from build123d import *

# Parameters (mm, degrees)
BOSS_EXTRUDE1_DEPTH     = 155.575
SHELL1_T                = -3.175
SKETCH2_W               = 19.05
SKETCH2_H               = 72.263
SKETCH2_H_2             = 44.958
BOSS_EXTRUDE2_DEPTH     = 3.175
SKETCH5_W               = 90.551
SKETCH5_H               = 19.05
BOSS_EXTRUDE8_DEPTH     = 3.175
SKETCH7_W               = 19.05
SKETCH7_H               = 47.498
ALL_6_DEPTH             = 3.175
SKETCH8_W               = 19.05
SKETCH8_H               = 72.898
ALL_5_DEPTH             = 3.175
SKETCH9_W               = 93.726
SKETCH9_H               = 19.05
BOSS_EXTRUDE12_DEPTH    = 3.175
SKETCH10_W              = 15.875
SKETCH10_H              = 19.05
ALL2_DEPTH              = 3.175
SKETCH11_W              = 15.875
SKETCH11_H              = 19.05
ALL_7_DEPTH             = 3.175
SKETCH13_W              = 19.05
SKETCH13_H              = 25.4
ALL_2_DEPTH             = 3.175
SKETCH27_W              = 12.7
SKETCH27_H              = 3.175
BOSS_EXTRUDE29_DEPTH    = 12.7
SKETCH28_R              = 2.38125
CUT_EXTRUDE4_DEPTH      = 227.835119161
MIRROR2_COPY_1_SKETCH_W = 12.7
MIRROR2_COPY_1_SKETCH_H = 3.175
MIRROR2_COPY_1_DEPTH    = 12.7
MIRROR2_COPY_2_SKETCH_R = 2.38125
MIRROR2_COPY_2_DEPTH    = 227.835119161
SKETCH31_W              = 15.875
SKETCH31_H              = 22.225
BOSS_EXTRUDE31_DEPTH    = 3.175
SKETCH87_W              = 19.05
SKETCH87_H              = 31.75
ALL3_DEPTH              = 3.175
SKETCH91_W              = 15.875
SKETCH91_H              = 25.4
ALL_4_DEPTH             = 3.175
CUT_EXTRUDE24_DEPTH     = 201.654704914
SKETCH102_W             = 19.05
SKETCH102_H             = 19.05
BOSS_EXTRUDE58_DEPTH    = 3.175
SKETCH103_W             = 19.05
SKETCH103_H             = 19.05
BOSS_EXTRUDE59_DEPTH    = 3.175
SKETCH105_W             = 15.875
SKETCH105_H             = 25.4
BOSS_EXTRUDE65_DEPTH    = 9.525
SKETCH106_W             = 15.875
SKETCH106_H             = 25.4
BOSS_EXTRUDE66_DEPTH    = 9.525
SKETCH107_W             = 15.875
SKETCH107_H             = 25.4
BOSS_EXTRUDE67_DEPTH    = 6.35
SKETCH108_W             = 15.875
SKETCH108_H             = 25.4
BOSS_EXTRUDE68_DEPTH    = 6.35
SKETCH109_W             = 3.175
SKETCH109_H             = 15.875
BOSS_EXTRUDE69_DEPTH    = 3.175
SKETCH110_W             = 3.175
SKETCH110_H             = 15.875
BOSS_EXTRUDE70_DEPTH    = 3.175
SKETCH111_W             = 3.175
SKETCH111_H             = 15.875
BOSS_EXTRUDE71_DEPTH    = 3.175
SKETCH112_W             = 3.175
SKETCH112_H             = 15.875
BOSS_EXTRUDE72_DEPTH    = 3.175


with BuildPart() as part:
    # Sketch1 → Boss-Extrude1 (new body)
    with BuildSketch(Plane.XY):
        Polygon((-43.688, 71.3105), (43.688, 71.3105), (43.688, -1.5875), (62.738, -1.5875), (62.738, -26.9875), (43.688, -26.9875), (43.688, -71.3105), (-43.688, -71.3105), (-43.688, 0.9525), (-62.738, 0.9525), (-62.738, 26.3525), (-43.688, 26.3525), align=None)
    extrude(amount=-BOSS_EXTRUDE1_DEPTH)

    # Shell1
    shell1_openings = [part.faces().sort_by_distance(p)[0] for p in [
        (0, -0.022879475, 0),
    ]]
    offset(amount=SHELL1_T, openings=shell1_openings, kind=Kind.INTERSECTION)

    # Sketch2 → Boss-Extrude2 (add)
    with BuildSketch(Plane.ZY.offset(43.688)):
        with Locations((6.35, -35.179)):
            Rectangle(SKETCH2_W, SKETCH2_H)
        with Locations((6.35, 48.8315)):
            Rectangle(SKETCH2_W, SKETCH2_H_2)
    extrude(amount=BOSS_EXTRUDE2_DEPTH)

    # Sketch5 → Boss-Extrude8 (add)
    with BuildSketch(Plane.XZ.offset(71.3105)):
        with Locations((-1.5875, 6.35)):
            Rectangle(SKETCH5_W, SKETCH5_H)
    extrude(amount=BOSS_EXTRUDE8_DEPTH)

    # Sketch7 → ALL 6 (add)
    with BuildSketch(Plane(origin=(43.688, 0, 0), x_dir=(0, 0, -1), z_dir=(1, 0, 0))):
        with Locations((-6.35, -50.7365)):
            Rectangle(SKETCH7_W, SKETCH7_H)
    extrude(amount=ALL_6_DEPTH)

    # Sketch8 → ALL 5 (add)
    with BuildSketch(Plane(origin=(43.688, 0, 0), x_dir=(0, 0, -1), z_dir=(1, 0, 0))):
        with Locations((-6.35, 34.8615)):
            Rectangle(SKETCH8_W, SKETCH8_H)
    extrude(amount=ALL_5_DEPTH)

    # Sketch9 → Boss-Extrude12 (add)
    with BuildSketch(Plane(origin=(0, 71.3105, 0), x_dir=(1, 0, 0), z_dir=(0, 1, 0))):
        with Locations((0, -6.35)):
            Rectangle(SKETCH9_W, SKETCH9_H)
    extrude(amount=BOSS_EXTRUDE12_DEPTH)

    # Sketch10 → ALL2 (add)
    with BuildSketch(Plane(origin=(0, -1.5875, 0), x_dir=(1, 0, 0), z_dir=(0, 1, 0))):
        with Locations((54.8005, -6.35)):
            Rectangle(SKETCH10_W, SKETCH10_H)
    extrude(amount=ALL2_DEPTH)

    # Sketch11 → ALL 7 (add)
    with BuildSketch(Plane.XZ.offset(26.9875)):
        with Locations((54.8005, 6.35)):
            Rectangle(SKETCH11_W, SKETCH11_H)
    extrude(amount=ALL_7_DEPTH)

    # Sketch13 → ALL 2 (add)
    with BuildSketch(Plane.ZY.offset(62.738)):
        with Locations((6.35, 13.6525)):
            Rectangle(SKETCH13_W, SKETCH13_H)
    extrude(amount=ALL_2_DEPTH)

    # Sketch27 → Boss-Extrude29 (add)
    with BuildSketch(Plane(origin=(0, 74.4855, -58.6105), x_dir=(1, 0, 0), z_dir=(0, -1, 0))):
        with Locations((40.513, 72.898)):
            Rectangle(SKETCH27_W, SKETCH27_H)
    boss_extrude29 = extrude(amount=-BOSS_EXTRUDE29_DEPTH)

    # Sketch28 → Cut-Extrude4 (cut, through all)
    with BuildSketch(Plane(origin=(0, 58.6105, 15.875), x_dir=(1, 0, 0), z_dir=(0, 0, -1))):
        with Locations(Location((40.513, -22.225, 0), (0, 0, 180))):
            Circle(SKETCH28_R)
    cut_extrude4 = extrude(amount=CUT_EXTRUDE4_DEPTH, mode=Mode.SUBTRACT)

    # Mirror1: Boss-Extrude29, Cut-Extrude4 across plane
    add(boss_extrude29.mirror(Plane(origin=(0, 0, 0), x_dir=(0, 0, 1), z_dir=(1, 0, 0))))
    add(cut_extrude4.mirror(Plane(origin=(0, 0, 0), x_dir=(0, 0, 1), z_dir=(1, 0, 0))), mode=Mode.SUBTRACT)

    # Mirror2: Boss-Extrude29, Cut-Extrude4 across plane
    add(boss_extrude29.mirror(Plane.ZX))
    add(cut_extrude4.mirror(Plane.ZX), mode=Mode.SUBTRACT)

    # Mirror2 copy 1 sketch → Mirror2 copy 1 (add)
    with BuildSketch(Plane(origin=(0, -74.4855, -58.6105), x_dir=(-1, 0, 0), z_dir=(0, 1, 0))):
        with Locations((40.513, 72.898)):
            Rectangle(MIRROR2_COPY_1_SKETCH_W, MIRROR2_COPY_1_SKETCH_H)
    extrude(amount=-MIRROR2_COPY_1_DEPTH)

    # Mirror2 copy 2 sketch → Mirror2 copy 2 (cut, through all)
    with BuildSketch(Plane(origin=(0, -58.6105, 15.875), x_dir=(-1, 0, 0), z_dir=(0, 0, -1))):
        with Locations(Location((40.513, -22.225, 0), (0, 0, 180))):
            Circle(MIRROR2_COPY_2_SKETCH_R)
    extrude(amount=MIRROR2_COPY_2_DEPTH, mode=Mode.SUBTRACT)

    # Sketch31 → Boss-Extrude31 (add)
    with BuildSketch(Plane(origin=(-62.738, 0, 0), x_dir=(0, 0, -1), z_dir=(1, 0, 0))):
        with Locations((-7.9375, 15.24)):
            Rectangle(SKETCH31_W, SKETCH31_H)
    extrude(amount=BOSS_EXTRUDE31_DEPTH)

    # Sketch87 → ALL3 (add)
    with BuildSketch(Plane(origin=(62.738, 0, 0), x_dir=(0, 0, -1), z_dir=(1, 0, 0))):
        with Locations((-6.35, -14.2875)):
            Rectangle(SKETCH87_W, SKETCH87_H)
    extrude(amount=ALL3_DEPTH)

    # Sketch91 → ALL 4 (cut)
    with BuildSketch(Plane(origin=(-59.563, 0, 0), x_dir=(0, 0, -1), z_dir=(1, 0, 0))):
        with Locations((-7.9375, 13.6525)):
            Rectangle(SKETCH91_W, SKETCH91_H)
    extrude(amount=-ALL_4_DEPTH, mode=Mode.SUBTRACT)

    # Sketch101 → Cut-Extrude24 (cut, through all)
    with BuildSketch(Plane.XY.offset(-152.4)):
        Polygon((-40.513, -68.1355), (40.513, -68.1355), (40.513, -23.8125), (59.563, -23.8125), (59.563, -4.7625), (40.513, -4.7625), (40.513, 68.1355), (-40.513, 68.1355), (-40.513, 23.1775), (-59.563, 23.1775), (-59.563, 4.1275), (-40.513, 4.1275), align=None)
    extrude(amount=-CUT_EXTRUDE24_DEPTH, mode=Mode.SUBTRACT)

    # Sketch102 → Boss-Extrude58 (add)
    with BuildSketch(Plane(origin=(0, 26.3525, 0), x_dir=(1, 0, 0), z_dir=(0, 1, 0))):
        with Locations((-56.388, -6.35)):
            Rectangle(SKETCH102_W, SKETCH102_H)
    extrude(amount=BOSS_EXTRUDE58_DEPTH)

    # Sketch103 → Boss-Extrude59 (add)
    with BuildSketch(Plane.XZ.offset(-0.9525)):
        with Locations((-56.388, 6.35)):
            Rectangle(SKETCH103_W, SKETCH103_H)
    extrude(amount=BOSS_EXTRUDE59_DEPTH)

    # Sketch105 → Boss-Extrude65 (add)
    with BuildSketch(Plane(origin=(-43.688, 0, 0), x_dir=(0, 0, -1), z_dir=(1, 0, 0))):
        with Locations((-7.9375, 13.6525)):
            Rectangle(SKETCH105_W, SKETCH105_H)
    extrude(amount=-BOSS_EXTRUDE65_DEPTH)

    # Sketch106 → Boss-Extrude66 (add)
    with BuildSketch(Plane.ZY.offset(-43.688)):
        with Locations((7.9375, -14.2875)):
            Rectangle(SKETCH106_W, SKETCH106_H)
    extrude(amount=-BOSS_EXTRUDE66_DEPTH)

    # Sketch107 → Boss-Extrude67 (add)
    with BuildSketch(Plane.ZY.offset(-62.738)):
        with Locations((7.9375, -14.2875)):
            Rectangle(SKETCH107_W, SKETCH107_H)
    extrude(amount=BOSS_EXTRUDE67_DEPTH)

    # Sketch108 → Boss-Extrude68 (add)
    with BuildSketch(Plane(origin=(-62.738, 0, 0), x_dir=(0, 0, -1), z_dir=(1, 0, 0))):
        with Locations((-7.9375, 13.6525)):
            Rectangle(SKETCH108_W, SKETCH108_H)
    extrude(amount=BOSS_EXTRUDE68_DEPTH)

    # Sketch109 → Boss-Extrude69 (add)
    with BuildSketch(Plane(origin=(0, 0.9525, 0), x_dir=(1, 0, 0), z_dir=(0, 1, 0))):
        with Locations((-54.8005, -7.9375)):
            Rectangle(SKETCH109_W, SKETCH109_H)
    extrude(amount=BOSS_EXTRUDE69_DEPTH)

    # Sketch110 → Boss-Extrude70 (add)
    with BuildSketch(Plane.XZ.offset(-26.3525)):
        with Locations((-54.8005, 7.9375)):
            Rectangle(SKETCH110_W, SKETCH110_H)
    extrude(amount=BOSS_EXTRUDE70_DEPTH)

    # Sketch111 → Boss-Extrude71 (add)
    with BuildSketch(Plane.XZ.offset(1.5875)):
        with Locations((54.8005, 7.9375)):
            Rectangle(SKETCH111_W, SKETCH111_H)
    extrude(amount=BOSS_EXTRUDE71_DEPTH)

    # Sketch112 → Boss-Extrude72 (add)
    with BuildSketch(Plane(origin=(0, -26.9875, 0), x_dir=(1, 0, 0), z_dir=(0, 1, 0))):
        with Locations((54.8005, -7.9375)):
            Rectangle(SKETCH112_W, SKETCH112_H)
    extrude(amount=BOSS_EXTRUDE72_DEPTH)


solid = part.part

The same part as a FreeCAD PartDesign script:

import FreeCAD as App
import Part
import Sketcher
from FreeCAD import Vector
Q = App.Units.Quantity


def faces_at(feature, points):
    """Names of the faces that lie closest to the given points."""
    faces = feature.Shape.Faces
    near = lambda p: min(range(len(faces)), key=lambda i: faces[i].distToShape(Part.Vertex(*p))[0])
    return sorted({f"Face{near(p) + 1}" for p in points})

doc = App.newDocument("Part")
body = doc.addObject("PartDesign::Body", "Body")

# Sketch on XY plane
sketch1 = doc.addObject("Sketcher::SketchObject", "Sketch")
body.addObject(sketch1)
sketch1.AttachmentSupport = (doc.XY_Plane, [""])
sketch1.MapMode = "FlatFace"
sketch1.addGeometry([
    Part.LineSegment(Vector(44, 71, 0), Vector(-44, 71, 0)),  # 0
    Part.LineSegment(Vector(-44, 71, 0), Vector(-44, 26, 0)),  # 1
    Part.LineSegment(Vector(-44, 26, 0), Vector(-63, 26, 0)),  # 2
    Part.LineSegment(Vector(-63, 26, 0), Vector(-63, 1, 0)),  # 3
    Part.LineSegment(Vector(-63, 1, 0), Vector(-44, 1, 0)),  # 4
    Part.LineSegment(Vector(-44, 1, 0), Vector(-44, -71, 0)),  # 5
    Part.LineSegment(Vector(-44, -71, 0), Vector(44, -71, 0)),  # 6
    Part.LineSegment(Vector(44, -71, 0), Vector(44, -27, 0)),  # 7
    Part.LineSegment(Vector(44, -27, 0), Vector(63, -27, 0)),  # 8
    Part.LineSegment(Vector(63, -27, 0), Vector(63, -2, 0)),  # 9
    Part.LineSegment(Vector(63, -2, 0), Vector(44, -2, 0)),  # 10
    Part.LineSegment(Vector(44, -2, 0), Vector(44, 71, 0)),  # 11
], False)
sketch1.addConstraint([
    Sketcher.Constraint("Coincident", 0, 2, 1, 1),
    Sketcher.Constraint("Coincident", 1, 2, 2, 1),
    Sketcher.Constraint("Coincident", 2, 2, 3, 1),
    Sketcher.Constraint("Coincident", 3, 2, 4, 1),
    Sketcher.Constraint("Coincident", 4, 2, 5, 1),
    Sketcher.Constraint("Coincident", 5, 2, 6, 1),
    Sketcher.Constraint("Coincident", 6, 2, 7, 1),
    Sketcher.Constraint("Coincident", 7, 2, 8, 1),
    Sketcher.Constraint("Coincident", 8, 2, 9, 1),
    Sketcher.Constraint("Coincident", 9, 2, 10, 1),
    Sketcher.Constraint("Coincident", 10, 2, 11, 1),
    Sketcher.Constraint("Coincident", 11, 2, 0, 1),
    Sketcher.Constraint("Horizontal", 0),
    Sketcher.Constraint("Vertical", 1),
    Sketcher.Constraint("Horizontal", 2),
    Sketcher.Constraint("Vertical", 3),
    Sketcher.Constraint("Horizontal", 4),
    Sketcher.Constraint("Vertical", 5),
    Sketcher.Constraint("Horizontal", 6),
    Sketcher.Constraint("Vertical", 7),
    Sketcher.Constraint("Horizontal", 8),
    Sketcher.Constraint("Vertical", 9),
    Sketcher.Constraint("Horizontal", 10),
    Sketcher.Constraint("Vertical", 11),
    Sketcher.Constraint("Symmetric", 0, 2, 6, 2, -1, 1),
    Sketcher.Constraint("Vertical", 1, 2, 4, 2),
    Sketcher.Constraint("Vertical", 7, 2, 10, 2),
    Sketcher.Constraint("Equal", 4, 8),
    Sketcher.Constraint("Equal", 3, 9),
    Sketcher.Constraint("DistanceY", 3, 2, 3, 1, Q("1 in")),
    Sketcher.Constraint("DistanceX", 0, 2, 0, 1, Q("3.44 in")),
    Sketcher.Constraint("DistanceX", 2, 2, 2, 1, Q("0.75 in")),
    Sketcher.Constraint("DistanceY", 1, 2, 1, 1, Q("1.77 in")),
    Sketcher.Constraint("DistanceY", 11, 1, 11, 2, Q("2.87 in")),
    Sketcher.Constraint("DistanceY", 5, 2, 5, 1, Q("2.845 in")),
])
pad1 = doc.addObject("PartDesign::Pad", "Pad")
body.addObject(pad1)
pad1.Profile = sketch1
pad1.Length = Q("6.125 in")
pad1.Reversed = True
doc.recompute()

thickness = doc.addObject("PartDesign::Thickness", "Thickness")
body.addObject(thickness)
thickness.Base = (pad1, faces_at(pad1, [(0, 0, 0)]))
thickness.Value = Q("0.125 in")
thickness.Reversed = True
thickness.Join = "Intersection"

# Sketch on YZ plane
sketch2 = doc.addObject("Sketcher::SketchObject", "Sketch001")
body.addObject(sketch2)
sketch2.AttachmentSupport = (doc.YZ_Plane, [""])
sketch2.MapMode = "FlatFace"
sketch2.AttachmentOffset = App.Placement(Vector(0, 0, -1.72 * 25.4), App.Rotation())
sketch2.addGeometry([
    Part.LineSegment(Vector(1, -3, 0), Vector(-71, -3, 0)),  # 0
    Part.LineSegment(Vector(-71, -3, 0), Vector(-71, 16, 0)),  # 1
    Part.LineSegment(Vector(-71, 16, 0), Vector(1, 16, 0)),  # 2
    Part.LineSegment(Vector(1, 16, 0), Vector(1, -3, 0)),  # 3
    Part.LineSegment(Vector(71, -3, 0), Vector(26, -3, 0)),  # 4
    Part.LineSegment(Vector(26, -3, 0), Vector(26, 16, 0)),  # 5
    Part.LineSegment(Vector(26, 16, 0), Vector(71, 16, 0)),  # 6
    Part.LineSegment(Vector(71, 16, 0), Vector(71, -3, 0)),  # 7
], False)
sketch2.addConstraint([
    Sketcher.Constraint("Coincident", 0, 2, 1, 1),
    Sketcher.Constraint("Coincident", 1, 2, 2, 1),
    Sketcher.Constraint("Coincident", 2, 2, 3, 1),
    Sketcher.Constraint("Coincident", 3, 2, 0, 1),
    Sketcher.Constraint("Coincident", 4, 2, 5, 1),
    Sketcher.Constraint("Coincident", 5, 2, 6, 1),
    Sketcher.Constraint("Coincident", 6, 2, 7, 1),
    Sketcher.Constraint("Coincident", 7, 2, 4, 1),
    Sketcher.Constraint("Horizontal", 0),
    Sketcher.Constraint("Vertical", 1),
    Sketcher.Constraint("Horizontal", 2),
    Sketcher.Constraint("Vertical", 3),
    Sketcher.Constraint("Horizontal", 4),
    Sketcher.Constraint("Vertical", 5),
    Sketcher.Constraint("Horizontal", 6),
    Sketcher.Constraint("Vertical", 7),
    Sketcher.Constraint("Symmetric", 1, 2, 6, 2, -2),
    Sketcher.Constraint("Horizontal", 3, 2, 4, 2),
    Sketcher.Constraint("DistanceX", 3, 2, 4, 2, Q("1 in")),
    Sketcher.Constraint("DistanceX", 4, 2, 4, 1, Q("1.77 in")),
    Sketcher.Constraint("DistanceY", 1, 1, 1, 2, Q("0.75 in")),
    Sketcher.Constraint("DistanceX", 0, 2, 0, 1, Q("2.845 in")),
    Sketcher.Constraint("DistanceY", 0, 2, -1, 1, Q("0.125 in")),
])
pad2 = doc.addObject("PartDesign::Pad", "Pad001")
body.addObject(pad2)
pad2.Profile = sketch2
pad2.Length = Q("0.125 in")
pad2.Reversed = True

# Sketch on XZ plane
sketch3 = doc.addObject("Sketcher::SketchObject", "Sketch002")
body.addObject(sketch3)
sketch3.AttachmentSupport = (doc.XZ_Plane, [""])
sketch3.MapMode = "FlatFace"
sketch3.AttachmentOffset = App.Placement(Vector(0, 0, 2.8075 * 25.4), App.Rotation())
sketch3.addGeometry([
    Part.LineSegment(Vector(-47, 16, 0), Vector(-47, -3, 0)),
    Part.LineSegment(Vector(-47, -3, 0), Vector(44, -3, 0)),
    Part.LineSegment(Vector(44, -3, 0), Vector(44, 16, 0)),
    Part.LineSegment(Vector(44, 16, 0), Vector(-47, 16, 0)),
], False)
sketch3.addConstraint([
    Sketcher.Constraint("Coincident", 0, 2, 1, 1),
    Sketcher.Constraint("Coincident", 1, 2, 2, 1),
    Sketcher.Constraint("Coincident", 2, 2, 3, 1),
    Sketcher.Constraint("Coincident", 3, 2, 0, 1),
    Sketcher.Constraint("Vertical", 0),
    Sketcher.Constraint("Horizontal", 1),
    Sketcher.Constraint("Vertical", 2),
    Sketcher.Constraint("Horizontal", 3),
    Sketcher.Constraint("DistanceY", 0, 2, 0, 1, Q("0.75 in")),
    Sketcher.Constraint("DistanceX", 1, 1, 1, 2, Q("3.565 in")),
    Sketcher.Constraint("DistanceX", -1, 1, 1, 2, Q("1.72 in")),
    Sketcher.Constraint("DistanceY", 0, 2, -1, 1, Q("0.125 in")),
])
pad3 = doc.addObject("PartDesign::Pad", "Pad002")
body.addObject(pad3)
pad3.Profile = sketch3
pad3.Length = Q("0.125 in")

# Sketch on YZ plane
sketch4 = doc.addObject("Sketcher::SketchObject", "Sketch003")
body.addObject(sketch4)
sketch4.AttachmentSupport = (doc.YZ_Plane, [""])
sketch4.MapMode = "FlatFace"
sketch4.AttachmentOffset = App.Placement(Vector(0, 0, 1.72 * 25.4), App.Rotation())
sketch4.addGeometry([
    Part.LineSegment(Vector(-27, 16, 0), Vector(-74, 16, 0)),
    Part.LineSegment(Vector(-74, 16, 0), Vector(-74, -3, 0)),
    Part.LineSegment(Vector(-74, -3, 0), Vector(-27, -3, 0)),
    Part.LineSegment(Vector(-27, -3, 0), Vector(-27, 16, 0)),
], False)
sketch4.addConstraint([
    Sketcher.Constraint("Coincident", 0, 2, 1, 1),
    Sketcher.Constraint("Coincident", 1, 2, 2, 1),
    Sketcher.Constraint("Coincident", 2, 2, 3, 1),
    Sketcher.Constraint("Coincident", 3, 2, 0, 1),
    Sketcher.Constraint("Horizontal", 0),
    Sketcher.Constraint("Vertical", 1),
    Sketcher.Constraint("Horizontal", 2),
    Sketcher.Constraint("Vertical", 3),
    Sketcher.Constraint("DistanceX", 0, 2, 0, 1, Q("1.87 in")),
    Sketcher.Constraint("DistanceY", 1, 2, 1, 1, Q("0.75 in")),
    Sketcher.Constraint("DistanceY", -1, 1, 0, 2, Q("0.625 in")),
    Sketcher.Constraint("DistanceX", 2, 2, -1, 1, Q("1.0625 in")),
])
pad4 = doc.addObject("PartDesign::Pad", "Pad003")
body.addObject(pad4)
pad4.Profile = sketch4
pad4.Length = Q("0.125 in")

# Sketch on YZ plane
sketch5 = doc.addObject("Sketcher::SketchObject", "Sketch004")
body.addObject(sketch5)
sketch5.AttachmentSupport = (doc.YZ_Plane, [""])
sketch5.MapMode = "FlatFace"
sketch5.AttachmentOffset = App.Placement(Vector(0, 0, 1.72 * 25.4), App.Rotation())
sketch5.addGeometry([
    Part.LineSegment(Vector(71, 16, 0), Vector(-2, 16, 0)),
    Part.LineSegment(Vector(-2, 16, 0), Vector(-2, -3, 0)),
    Part.LineSegment(Vector(-2, -3, 0), Vector(71, -3, 0)),
    Part.LineSegment(Vector(71, -3, 0), Vector(71, 16, 0)),
], False)
sketch5.addConstraint([
    Sketcher.Constraint("Coincident", 0, 2, 1, 1),
    Sketcher.Constraint("Coincident", 1, 2, 2, 1),
    Sketcher.Constraint("Coincident", 2, 2, 3, 1),
    Sketcher.Constraint("Coincident", 3, 2, 0, 1),
    Sketcher.Constraint("Horizontal", 0),
    Sketcher.Constraint("Vertical", 1),
    Sketcher.Constraint("Horizontal", 2),
    Sketcher.Constraint("Vertical", 3),
    Sketcher.Constraint("DistanceX", 0, 2, 0, 1, Q("2.87 in")),
    Sketcher.Constraint("DistanceY", 1, 2, 1, 1, Q("0.75 in")),
    Sketcher.Constraint("DistanceX", 0, 2, -1, 1, Q("0.0625 in")),
    Sketcher.Constraint("DistanceY", -1, 1, 0, 2, Q("0.625 in")),
])
pad5 = doc.addObject("PartDesign::Pad", "Pad004")
body.addObject(pad5)
pad5.Profile = sketch5
pad5.Length = Q("0.125 in")

# Sketch on XZ plane
sketch6 = doc.addObject("Sketcher::SketchObject", "Sketch005")
body.addObject(sketch6)
sketch6.AttachmentSupport = (doc.XZ_Plane, [""])
sketch6.MapMode = "FlatFace"
sketch6.AttachmentOffset = App.Placement(Vector(0, 0, -2.8075 * 25.4), App.Rotation())
sketch6.addGeometry([
    Part.LineSegment(Vector(-47, -3, 0), Vector(-47, 16, 0)),
    Part.LineSegment(Vector(-47, 16, 0), Vector(47, 16, 0)),
    Part.LineSegment(Vector(47, 16, 0), Vector(47, -3, 0)),
    Part.LineSegment(Vector(47, -3, 0), Vector(-47, -3, 0)),
], False)
sketch6.addConstraint([
    Sketcher.Constraint("Coincident", 0, 2, 1, 1),
    Sketcher.Constraint("Coincident", 1, 2, 2, 1),
    Sketcher.Constraint("Coincident", 2, 2, 3, 1),
    Sketcher.Constraint("Coincident", 3, 2, 0, 1),
    Sketcher.Constraint("Vertical", 0),
    Sketcher.Constraint("Horizontal", 1),
    Sketcher.Constraint("Vertical", 2),
    Sketcher.Constraint("Horizontal", 3),
    Sketcher.Constraint("DistanceX", 1, 1, 1, 2, Q("3.69 in")),
    Sketcher.Constraint("DistanceY", 0, 1, 0, 2, Q("0.75 in")),
    Sketcher.Constraint("DistanceX", 0, 2, -1, 1, Q("1.845 in")),
    Sketcher.Constraint("DistanceY", -1, 1, 0, 2, Q("0.625 in")),
])
pad6 = doc.addObject("PartDesign::Pad", "Pad005")
body.addObject(pad6)
pad6.Profile = sketch6
pad6.Length = Q("0.125 in")
pad6.Reversed = True

# Sketch on XZ plane
sketch7 = doc.addObject("Sketcher::SketchObject", "Sketch006")
body.addObject(sketch7)
sketch7.AttachmentSupport = (doc.XZ_Plane, [""])
sketch7.MapMode = "FlatFace"
sketch7.AttachmentOffset = App.Placement(Vector(0, 0, 0.0625 * 25.4), App.Rotation())
sketch7.addGeometry([
    Part.LineSegment(Vector(47, -3, 0), Vector(47, 16, 0)),
    Part.LineSegment(Vector(47, 16, 0), Vector(63, 16, 0)),
    Part.LineSegment(Vector(63, 16, 0), Vector(63, -3, 0)),
    Part.LineSegment(Vector(63, -3, 0), Vector(47, -3, 0)),
], False)
sketch7.addConstraint([
    Sketcher.Constraint("Coincident", 0, 2, 1, 1),
    Sketcher.Constraint("Coincident", 1, 2, 2, 1),
    Sketcher.Constraint("Coincident", 2, 2, 3, 1),
    Sketcher.Constraint("Coincident", 3, 2, 0, 1),
    Sketcher.Constraint("Vertical", 0),
    Sketcher.Constraint("Horizontal", 1),
    Sketcher.Constraint("Vertical", 2),
    Sketcher.Constraint("Horizontal", 3),
    Sketcher.Constraint("DistanceY", 0, 1, 0, 2, Q("0.75 in")),
    Sketcher.Constraint("DistanceX", 1, 1, 1, 2, Q("0.625 in")),
    Sketcher.Constraint("DistanceX", -1, 1, 1, 2, Q("2.47 in")),
    Sketcher.Constraint("DistanceY", -1, 1, 0, 2, Q("0.625 in")),
])
pad7 = doc.addObject("PartDesign::Pad", "Pad006")
body.addObject(pad7)
pad7.Profile = sketch7
pad7.Length = Q("0.125 in")
pad7.Reversed = True

# Sketch on XZ plane
sketch8 = doc.addObject("Sketcher::SketchObject", "Sketch007")
body.addObject(sketch8)
sketch8.AttachmentSupport = (doc.XZ_Plane, [""])
sketch8.MapMode = "FlatFace"
sketch8.AttachmentOffset = App.Placement(Vector(0, 0, 1.0625 * 25.4), App.Rotation())
sketch8.addGeometry([
    Part.LineSegment(Vector(47, 16, 0), Vector(47, -3, 0)),
    Part.LineSegment(Vector(47, -3, 0), Vector(63, -3, 0)),
    Part.LineSegment(Vector(63, -3, 0), Vector(63, 16, 0)),
    Part.LineSegment(Vector(63, 16, 0), Vector(47, 16, 0)),
], False)
sketch8.addConstraint([
    Sketcher.Constraint("Coincident", 0, 2, 1, 1),
    Sketcher.Constraint("Coincident", 1, 2, 2, 1),
    Sketcher.Constraint("Coincident", 2, 2, 3, 1),
    Sketcher.Constraint("Coincident", 3, 2, 0, 1),
    Sketcher.Constraint("Vertical", 0),
    Sketcher.Constraint("Horizontal", 1),
    Sketcher.Constraint("Vertical", 2),
    Sketcher.Constraint("Horizontal", 3),
    Sketcher.Constraint("DistanceY", 0, 2, 0, 1, Q("0.75 in")),
    Sketcher.Constraint("DistanceX", 1, 1, 1, 2, Q("0.625 in")),
    Sketcher.Constraint("DistanceX", -1, 1, 1, 2, Q("2.47 in")),
    Sketcher.Constraint("DistanceY", 0, 2, -1, 1, Q("0.125 in")),
])
pad8 = doc.addObject("PartDesign::Pad", "Pad007")
body.addObject(pad8)
pad8.Profile = sketch8
pad8.Length = Q("0.125 in")

# Sketch on YZ plane
sketch9 = doc.addObject("Sketcher::SketchObject", "Sketch008")
body.addObject(sketch9)
sketch9.AttachmentSupport = (doc.YZ_Plane, [""])
sketch9.MapMode = "FlatFace"
sketch9.AttachmentOffset = App.Placement(Vector(0, 0, -2.47 * 25.4), App.Rotation())
sketch9.addGeometry([
    Part.LineSegment(Vector(26, -3, 0), Vector(1, -3, 0)),
    Part.LineSegment(Vector(1, -3, 0), Vector(1, 16, 0)),
    Part.LineSegment(Vector(1, 16, 0), Vector(26, 16, 0)),
    Part.LineSegment(Vector(26, 16, 0), Vector(26, -3, 0)),
], False)
sketch9.addConstraint([
    Sketcher.Constraint("Coincident", 0, 2, 1, 1),
    Sketcher.Constraint("Coincident", 1, 2, 2, 1),
    Sketcher.Constraint("Coincident", 2, 2, 3, 1),
    Sketcher.Constraint("Coincident", 3, 2, 0, 1),
    Sketcher.Constraint("Horizontal", 0),
    Sketcher.Constraint("Vertical", 1),
    Sketcher.Constraint("Horizontal", 2),
    Sketcher.Constraint("Vertical", 3),
    Sketcher.Constraint("DistanceX", 0, 2, 0, 1, Q("1 in")),
    Sketcher.Constraint("DistanceY", 1, 1, 1, 2, Q("0.75 in")),
    Sketcher.Constraint("DistanceY", 0, 2, -1, 1, Q("0.125 in")),
    Sketcher.Constraint("DistanceX", -1, 1, 0, 2, Q("0.0375 in")),
])
pad9 = doc.addObject("PartDesign::Pad", "Pad008")
body.addObject(pad9)
pad9.Profile = sketch9
pad9.Length = Q("0.125 in")
pad9.Reversed = True

# Sketch on XZ plane
sketch10 = doc.addObject("Sketcher::SketchObject", "Sketch009")
body.addObject(sketch10)
sketch10.AttachmentSupport = (doc.XZ_Plane, [""])
sketch10.MapMode = "FlatFace"
sketch10.AttachmentOffset = App.Placement(Vector(0, 0, -2.9325 * 25.4), App.Rotation())
sketch10.addGeometry([
    Part.LineSegment(Vector(34.2, 15.9, 0), Vector(34.2, 12.7, 0)),
    Part.LineSegment(Vector(34.2, 12.7, 0), Vector(46.9, 12.7, 0)),
    Part.LineSegment(Vector(46.9, 12.7, 0), Vector(46.9, 15.9, 0)),
    Part.LineSegment(Vector(46.9, 15.9, 0), Vector(34.2, 15.9, 0)),
], False)
sketch10.addConstraint([
    Sketcher.Constraint("Coincident", 0, 2, 1, 1),
    Sketcher.Constraint("Coincident", 1, 2, 2, 1),
    Sketcher.Constraint("Coincident", 2, 2, 3, 1),
    Sketcher.Constraint("Coincident", 3, 2, 0, 1),
    Sketcher.Constraint("Vertical", 0),
    Sketcher.Constraint("Horizontal", 1),
    Sketcher.Constraint("Vertical", 2),
    Sketcher.Constraint("Horizontal", 3),
    Sketcher.Constraint("DistanceX", 1, 1, 1, 2, Q("0.5 in")),
    Sketcher.Constraint("DistanceY", -1, 1, 0, 2, Q("0.5 in")),
    Sketcher.Constraint("DistanceY", 0, 2, 0, 1, Q("0.125 in")),
    Sketcher.Constraint("DistanceX", -1, 1, 0, 2, Q("1.345 in")),
])
pad10 = doc.addObject("PartDesign::Pad", "Pad009")
body.addObject(pad10)
pad10.Profile = sketch10
pad10.Length = Q("0.5 in")
pad10.Reversed = True

# Sketch on XY plane
sketch11 = doc.addObject("Sketcher::SketchObject", "Sketch010")
body.addObject(sketch11)
sketch11.AttachmentSupport = (doc.XY_Plane, [""])
sketch11.MapMode = "FlatFace"
sketch11.AttachmentOffset = App.Placement(Vector(0, 0, 0.625 * 25.4), App.Rotation())
sketch11.addGeometry(Part.Circle(Vector(40.5, 80.8, 0), Vector(0, 0, 1), 2.4), False)
sketch11.addConstraint([
    Sketcher.Constraint("Diameter", 0, Q("0.1875 in")),
    Sketcher.Constraint("DistanceX", -1, 1, 0, 3, Q("1.595 in")),
    Sketcher.Constraint("DistanceY", -1, 1, 0, 3, Q("3.1825 in")),
])
pocket1 = doc.addObject("PartDesign::Pocket", "Pocket")
body.addObject(pocket1)
pocket1.Profile = sketch11
pocket1.Type = "ThroughAll"
doc.recompute()

mirrored = doc.addObject("PartDesign::Mirrored", "Mirrored")
body.addObject(mirrored)
mirrored.Originals = [pad10, pocket1]
mirrored.MirrorPlane = (doc.YZ_Plane, [""])
body.Tip = mirrored
doc.recompute()

mirrored2 = doc.addObject("PartDesign::Mirrored", "Mirrored001")
body.addObject(mirrored2)
mirrored2.Originals = [pad10, pocket1]
mirrored2.MirrorPlane = (doc.XZ_Plane, [""])
body.Tip = mirrored2

# Sketch on XZ plane
sketch12 = doc.addObject("Sketcher::SketchObject", "Sketch011")
body.addObject(sketch12)
sketch12.AttachmentSupport = (doc.XZ_Plane, [""])
sketch12.MapMode = "FlatFace"
sketch12.AttachmentOffset = App.Placement(Vector(0, 0, 2.9325 * 25.4), App.Rotation())
sketch12.addGeometry([
    Part.LineSegment(Vector(-34.2, 15.9, 0), Vector(-34.2, 12.7, 0)),
    Part.LineSegment(Vector(-34.2, 12.7, 0), Vector(-46.9, 12.7, 0)),
    Part.LineSegment(Vector(-46.9, 12.7, 0), Vector(-46.9, 15.9, 0)),
    Part.LineSegment(Vector(-46.9, 15.9, 0), Vector(-34.2, 15.9, 0)),
], False)
sketch12.addConstraint([
    Sketcher.Constraint("Coincident", 0, 2, 1, 1),
    Sketcher.Constraint("Coincident", 1, 2, 2, 1),
    Sketcher.Constraint("Coincident", 2, 2, 3, 1),
    Sketcher.Constraint("Coincident", 3, 2, 0, 1),
    Sketcher.Constraint("Vertical", 0),
    Sketcher.Constraint("Horizontal", 1),
    Sketcher.Constraint("Vertical", 2),
    Sketcher.Constraint("Horizontal", 3),
    Sketcher.Constraint("DistanceX", 1, 2, 1, 1, Q("0.5 in")),
    Sketcher.Constraint("DistanceY", -1, 1, 0, 2, Q("0.5 in")),
    Sketcher.Constraint("DistanceY", 0, 2, 0, 1, Q("0.125 in")),
    Sketcher.Constraint("DistanceX", 0, 2, -1, 1, Q("1.345 in")),
])
pad11 = doc.addObject("PartDesign::Pad", "Pad010")
body.addObject(pad11)
pad11.Profile = sketch12
pad11.Length = Q("0.5 in")

# Sketch on XY plane
sketch13 = doc.addObject("Sketcher::SketchObject", "Sketch012")
body.addObject(sketch13)
sketch13.AttachmentSupport = (doc.XY_Plane, [""])
sketch13.MapMode = "FlatFace"
sketch13.AttachmentOffset = App.Placement(Vector(0, 0, 0.625 * 25.4), App.Rotation())
sketch13.addGeometry(Part.Circle(Vector(-40.5, -80.8, 0), Vector(0, 0, 1), 2.4), False)
sketch13.addConstraint([
    Sketcher.Constraint("Diameter", 0, Q("0.1875 in")),
    Sketcher.Constraint("DistanceX", 0, 3, -1, 1, Q("1.595 in")),
    Sketcher.Constraint("DistanceY", 0, 3, -1, 1, Q("3.1825 in")),
])
pocket2 = doc.addObject("PartDesign::Pocket", "Pocket001")
body.addObject(pocket2)
pocket2.Profile = sketch13
pocket2.Type = "ThroughAll"

# Sketch on YZ plane
sketch14 = doc.addObject("Sketcher::SketchObject", "Sketch013")
body.addObject(sketch14)
sketch14.AttachmentSupport = (doc.YZ_Plane, [""])
sketch14.MapMode = "FlatFace"
sketch14.AttachmentOffset = App.Placement(Vector(0, 0, -2.47 * 25.4), App.Rotation())
sketch14.addGeometry([
    Part.LineSegment(Vector(26, 16, 0), Vector(4, 16, 0)),
    Part.LineSegment(Vector(4, 16, 0), Vector(4, 0, 0)),
    Part.LineSegment(Vector(4, 0, 0), Vector(26, 0, 0)),
    Part.LineSegment(Vector(26, 0, 0), Vector(26, 16, 0)),
], False)
sketch14.addConstraint([
    Sketcher.Constraint("Coincident", 0, 2, 1, 1),
    Sketcher.Constraint("Coincident", 1, 2, 2, 1),
    Sketcher.Constraint("Coincident", 2, 2, 3, 1),
    Sketcher.Constraint("Coincident", 3, 2, 0, 1),
    Sketcher.Constraint("Horizontal", 0),
    Sketcher.Constraint("Vertical", 1),
    Sketcher.Constraint("Horizontal", 2),
    Sketcher.Constraint("Vertical", 3),
    Sketcher.Constraint("PointOnObject", 1, 2, -1),
    Sketcher.Constraint("DistanceX", 0, 2, 0, 1, Q("0.875 in")),
    Sketcher.Constraint("DistanceY", 1, 2, 1, 1, Q("0.625 in")),
    Sketcher.Constraint("DistanceX", -1, 1, 0, 2, Q("0.1625 in")),
])
pad12 = doc.addObject("PartDesign::Pad", "Pad011")
body.addObject(pad12)
pad12.Profile = sketch14
pad12.Length = Q("0.125 in")

# Sketch on YZ plane
sketch15 = doc.addObject("Sketcher::SketchObject", "Sketch014")
body.addObject(sketch15)
sketch15.AttachmentSupport = (doc.YZ_Plane, [""])
sketch15.MapMode = "FlatFace"
sketch15.AttachmentOffset = App.Placement(Vector(0, 0, 2.47 * 25.4), App.Rotation())
sketch15.addGeometry([
    Part.LineSegment(Vector(2, 16, 0), Vector(-30, 16, 0)),
    Part.LineSegment(Vector(-30, 16, 0), Vector(-30, -3, 0)),
    Part.LineSegment(Vector(-30, -3, 0), Vector(2, -3, 0)),
    Part.LineSegment(Vector(2, -3, 0), Vector(2, 16, 0)),
], False)
sketch15.addConstraint([
    Sketcher.Constraint("Coincident", 0, 2, 1, 1),
    Sketcher.Constraint("Coincident", 1, 2, 2, 1),
    Sketcher.Constraint("Coincident", 2, 2, 3, 1),
    Sketcher.Constraint("Coincident", 3, 2, 0, 1),
    Sketcher.Constraint("Horizontal", 0),
    Sketcher.Constraint("Vertical", 1),
    Sketcher.Constraint("Horizontal", 2),
    Sketcher.Constraint("Vertical", 3),
    Sketcher.Constraint("DistanceX", 0, 2, 0, 1, Q("1.25 in")),
    Sketcher.Constraint("DistanceY", 1, 2, 1, 1, Q("0.75 in")),
    Sketcher.Constraint("DistanceX", 0, 2, -1, 1, Q("1.1875 in")),
    Sketcher.Constraint("DistanceY", -1, 1, 0, 2, Q("0.625 in")),
])
pad13 = doc.addObject("PartDesign::Pad", "Pad012")
body.addObject(pad13)
pad13.Profile = sketch15
pad13.Length = Q("0.125 in")

# Sketch on YZ plane
sketch16 = doc.addObject("Sketcher::SketchObject", "Sketch015")
body.addObject(sketch16)
sketch16.AttachmentSupport = (doc.YZ_Plane, [""])
sketch16.MapMode = "FlatFace"
sketch16.AttachmentOffset = App.Placement(Vector(0, 0, -2.345 * 25.4), App.Rotation())
sketch16.addGeometry([
    Part.LineSegment(Vector(26, 16, 0), Vector(1, 16, 0)),
    Part.LineSegment(Vector(1, 16, 0), Vector(1, 0, 0)),
    Part.LineSegment(Vector(1, 0, 0), Vector(26, 0, 0)),
    Part.LineSegment(Vector(26, 0, 0), Vector(26, 16, 0)),
], False)
sketch16.addConstraint([
    Sketcher.Constraint("Coincident", 0, 2, 1, 1),
    Sketcher.Constraint("Coincident", 1, 2, 2, 1),
    Sketcher.Constraint("Coincident", 2, 2, 3, 1),
    Sketcher.Constraint("Coincident", 3, 2, 0, 1),
    Sketcher.Constraint("Horizontal", 0),
    Sketcher.Constraint("Vertical", 1),
    Sketcher.Constraint("Horizontal", 2),
    Sketcher.Constraint("Vertical", 3),
    Sketcher.Constraint("PointOnObject", 1, 2, -1),
    Sketcher.Constraint("DistanceX", 0, 2, 0, 1, Q("1 in")),
    Sketcher.Constraint("DistanceY", 1, 2, 1, 1, Q("0.625 in")),
    Sketcher.Constraint("DistanceX", -1, 1, 0, 2, Q("0.0375 in")),
])
pocket3 = doc.addObject("PartDesign::Pocket", "Pocket002")
body.addObject(pocket3)
pocket3.Profile = sketch16
pocket3.Length = Q("0.125 in")

# Sketch on XY plane
sketch17 = doc.addObject("Sketcher::SketchObject", "Sketch016")
body.addObject(sketch17)
sketch17.AttachmentSupport = (doc.XY_Plane, [""])
sketch17.MapMode = "FlatFace"
sketch17.AttachmentOffset = App.Placement(Vector(0, 0, -6 * 25.4), App.Rotation())
sketch17.addGeometry([
    Part.LineSegment(Vector(-41, -68, 0), Vector(41, -68, 0)),  # 0
    Part.LineSegment(Vector(41, -68, 0), Vector(41, -24, 0)),  # 1
    Part.LineSegment(Vector(41, -24, 0), Vector(60, -24, 0)),  # 2
    Part.LineSegment(Vector(60, -24, 0), Vector(60, -5, 0)),  # 3
    Part.LineSegment(Vector(60, -5, 0), Vector(41, -5, 0)),  # 4
    Part.LineSegment(Vector(41, -5, 0), Vector(41, 68, 0)),  # 5
    Part.LineSegment(Vector(41, 68, 0), Vector(-41, 68, 0)),  # 6
    Part.LineSegment(Vector(-41, 68, 0), Vector(-41, 23, 0)),  # 7
    Part.LineSegment(Vector(-41, 23, 0), Vector(-60, 23, 0)),  # 8
    Part.LineSegment(Vector(-60, 23, 0), Vector(-60, 4, 0)),  # 9
    Part.LineSegment(Vector(-60, 4, 0), Vector(-41, 4, 0)),  # 10
    Part.LineSegment(Vector(-41, 4, 0), Vector(-41, -68, 0)),  # 11
], False)
sketch17.addConstraint([
    Sketcher.Constraint("Coincident", 0, 2, 1, 1),
    Sketcher.Constraint("Coincident", 1, 2, 2, 1),
    Sketcher.Constraint("Coincident", 2, 2, 3, 1),
    Sketcher.Constraint("Coincident", 3, 2, 4, 1),
    Sketcher.Constraint("Coincident", 4, 2, 5, 1),
    Sketcher.Constraint("Coincident", 5, 2, 6, 1),
    Sketcher.Constraint("Coincident", 6, 2, 7, 1),
    Sketcher.Constraint("Coincident", 7, 2, 8, 1),
    Sketcher.Constraint("Coincident", 8, 2, 9, 1),
    Sketcher.Constraint("Coincident", 9, 2, 10, 1),
    Sketcher.Constraint("Coincident", 10, 2, 11, 1),
    Sketcher.Constraint("Coincident", 11, 2, 0, 1),
    Sketcher.Constraint("Horizontal", 0),
    Sketcher.Constraint("Vertical", 1),
    Sketcher.Constraint("Horizontal", 2),
    Sketcher.Constraint("Vertical", 3),
    Sketcher.Constraint("Horizontal", 4),
    Sketcher.Constraint("Vertical", 5),
    Sketcher.Constraint("Horizontal", 6),
    Sketcher.Constraint("Vertical", 7),
    Sketcher.Constraint("Horizontal", 8),
    Sketcher.Constraint("Vertical", 9),
    Sketcher.Constraint("Horizontal", 10),
    Sketcher.Constraint("Vertical", 11),
    Sketcher.Constraint("Symmetric", 0, 2, 6, 2, -1, 1),
    Sketcher.Constraint("Vertical", 1, 2, 4, 2),
    Sketcher.Constraint("Vertical", 7, 2, 10, 2),
    Sketcher.Constraint("Equal", 4, 8),
    Sketcher.Constraint("Equal", 10, 3),
    Sketcher.Constraint("Equal", 3, 9),
    Sketcher.Constraint("DistanceX", 0, 1, 0, 2, Q("3.19 in")),
    Sketcher.Constraint("DistanceX", 2, 1, 2, 2, Q("0.75 in")),
    Sketcher.Constraint("DistanceY", 5, 1, 5, 2, Q("2.87 in")),
    Sketcher.Constraint("DistanceY", 7, 2, 7, 1, Q("1.77 in")),
    Sketcher.Constraint("DistanceY", 1, 1, 1, 2, Q("1.745 in")),
])
pocket4 = doc.addObject("PartDesign::Pocket", "Pocket003")
body.addObject(pocket4)
pocket4.Profile = sketch17
pocket4.Type = "ThroughAll"

# Sketch on XZ plane
sketch18 = doc.addObject("Sketcher::SketchObject", "Sketch017")
body.addObject(sketch18)
sketch18.AttachmentSupport = (doc.XZ_Plane, [""])
sketch18.MapMode = "FlatFace"
sketch18.AttachmentOffset = App.Placement(Vector(0, 0, -1.0375 * 25.4), App.Rotation())
sketch18.addGeometry([
    Part.LineSegment(Vector(-66, -3, 0), Vector(-66, 16, 0)),
    Part.LineSegment(Vector(-66, 16, 0), Vector(-47, 16, 0)),
    Part.LineSegment(Vector(-47, 16, 0), Vector(-47, -3, 0)),
    Part.LineSegment(Vector(-47, -3, 0), Vector(-66, -3, 0)),
], False)
sketch18.addConstraint([
    Sketcher.Constraint("Coincident", 0, 2, 1, 1),
    Sketcher.Constraint("Coincident", 1, 2, 2, 1),
    Sketcher.Constraint("Coincident", 2, 2, 3, 1),
    Sketcher.Constraint("Coincident", 3, 2, 0, 1),
    Sketcher.Constraint("Vertical", 0),
    Sketcher.Constraint("Horizontal", 1),
    Sketcher.Constraint("Vertical", 2),
    Sketcher.Constraint("Horizontal", 3),
    Sketcher.Constraint("Equal", 3, 0),
    Sketcher.Constraint("DistanceX", 1, 1, 1, 2, Q("0.75 in")),
    Sketcher.Constraint("DistanceX", 0, 2, -1, 1, Q("2.595 in")),
    Sketcher.Constraint("DistanceY", -1, 1, 0, 2, Q("0.625 in")),
])
pad14 = doc.addObject("PartDesign::Pad", "Pad013")
body.addObject(pad14)
pad14.Profile = sketch18
pad14.Length = Q("0.125 in")
pad14.Reversed = True

# Sketch on XZ plane
sketch19 = doc.addObject("Sketcher::SketchObject", "Sketch018")
body.addObject(sketch19)
sketch19.AttachmentSupport = (doc.XZ_Plane, [""])
sketch19.MapMode = "FlatFace"
sketch19.AttachmentOffset = App.Placement(Vector(0, 0, -0.0375 * 25.4), App.Rotation())
sketch19.addGeometry([
    Part.LineSegment(Vector(-66, 16, 0), Vector(-66, -3, 0)),
    Part.LineSegment(Vector(-66, -3, 0), Vector(-47, -3, 0)),
    Part.LineSegment(Vector(-47, -3, 0), Vector(-47, 16, 0)),
    Part.LineSegment(Vector(-47, 16, 0), Vector(-66, 16, 0)),
], False)
sketch19.addConstraint([
    Sketcher.Constraint("Coincident", 0, 2, 1, 1),
    Sketcher.Constraint("Coincident", 1, 2, 2, 1),
    Sketcher.Constraint("Coincident", 2, 2, 3, 1),
    Sketcher.Constraint("Coincident", 3, 2, 0, 1),
    Sketcher.Constraint("Vertical", 0),
    Sketcher.Constraint("Horizontal", 1),
    Sketcher.Constraint("Vertical", 2),
    Sketcher.Constraint("Horizontal", 3),
    Sketcher.Constraint("Equal", 3, 0),
    Sketcher.Constraint("DistanceX", 1, 1, 1, 2, Q("0.75 in")),
    Sketcher.Constraint("DistanceX", 0, 2, -1, 1, Q("2.595 in")),
    Sketcher.Constraint("DistanceY", 0, 2, -1, 1, Q("0.125 in")),
])
pad15 = doc.addObject("PartDesign::Pad", "Pad014")
body.addObject(pad15)
pad15.Profile = sketch19
pad15.Length = Q("0.125 in")

# Sketch on YZ plane
sketch20 = doc.addObject("Sketcher::SketchObject", "Sketch019")
body.addObject(sketch20)
sketch20.AttachmentSupport = (doc.YZ_Plane, [""])
sketch20.MapMode = "FlatFace"
sketch20.AttachmentOffset = App.Placement(Vector(0, 0, -1.72 * 25.4), App.Rotation())
sketch20.addGeometry([
    Part.LineSegment(Vector(26, 16, 0), Vector(1, 16, 0)),
    Part.LineSegment(Vector(1, 16, 0), Vector(1, 0, 0)),
    Part.LineSegment(Vector(1, 0, 0), Vector(26, 0, 0)),
    Part.LineSegment(Vector(26, 0, 0), Vector(26, 16, 0)),
], False)
sketch20.addConstraint([
    Sketcher.Constraint("Coincident", 0, 2, 1, 1),
    Sketcher.Constraint("Coincident", 1, 2, 2, 1),
    Sketcher.Constraint("Coincident", 2, 2, 3, 1),
    Sketcher.Constraint("Coincident", 3, 2, 0, 1),
    Sketcher.Constraint("Horizontal", 0),
    Sketcher.Constraint("Vertical", 1),
    Sketcher.Constraint("Horizontal", 2),
    Sketcher.Constraint("Vertical", 3),
    Sketcher.Constraint("PointOnObject", 1, 2, -1),
    Sketcher.Constraint("DistanceX", 0, 2, 0, 1, Q("1 in")),
    Sketcher.Constraint("DistanceY", 1, 2, 1, 1, Q("0.625 in")),
    Sketcher.Constraint("DistanceX", -1, 1, 0, 2, Q("0.0375 in")),
])
pad16 = doc.addObject("PartDesign::Pad", "Pad015")
body.addObject(pad16)
pad16.Profile = sketch20
pad16.Length = Q("0.375 in")
pad16.Reversed = True

# Sketch on YZ plane
sketch21 = doc.addObject("Sketcher::SketchObject", "Sketch020")
body.addObject(sketch21)
sketch21.AttachmentSupport = (doc.YZ_Plane, [""])
sketch21.MapMode = "FlatFace"
sketch21.AttachmentOffset = App.Placement(Vector(0, 0, 1.72 * 25.4), App.Rotation())
sketch21.addGeometry([
    Part.LineSegment(Vector(-2, 0, 0), Vector(-27, 0, 0)),
    Part.LineSegment(Vector(-27, 0, 0), Vector(-27, 16, 0)),
    Part.LineSegment(Vector(-27, 16, 0), Vector(-2, 16, 0)),
    Part.LineSegment(Vector(-2, 16, 0), Vector(-2, 0, 0)),
], False)
sketch21.addConstraint([
    Sketcher.Constraint("Coincident", 0, 2, 1, 1),
    Sketcher.Constraint("Coincident", 1, 2, 2, 1),
    Sketcher.Constraint("Coincident", 2, 2, 3, 1),
    Sketcher.Constraint("Coincident", 3, 2, 0, 1),
    Sketcher.Constraint("Horizontal", 0),
    Sketcher.Constraint("Vertical", 1),
    Sketcher.Constraint("Horizontal", 2),
    Sketcher.Constraint("Vertical", 3),
    Sketcher.Constraint("PointOnObject", 0, 2, -1),
    Sketcher.Constraint("DistanceX", 0, 2, 0, 1, Q("1 in")),
    Sketcher.Constraint("DistanceY", 1, 1, 1, 2, Q("0.625 in")),
    Sketcher.Constraint("DistanceX", 0, 2, -1, 1, Q("1.0625 in")),
])
pad17 = doc.addObject("PartDesign::Pad", "Pad016")
body.addObject(pad17)
pad17.Profile = sketch21
pad17.Length = Q("0.375 in")

# Sketch on YZ plane
sketch22 = doc.addObject("Sketcher::SketchObject", "Sketch021")
body.addObject(sketch22)
sketch22.AttachmentSupport = (doc.YZ_Plane, [""])
sketch22.MapMode = "FlatFace"
sketch22.AttachmentOffset = App.Placement(Vector(0, 0, 2.47 * 25.4), App.Rotation())
sketch22.addGeometry([
    Part.LineSegment(Vector(-2, 0, 0), Vector(-27, 0, 0)),
    Part.LineSegment(Vector(-27, 0, 0), Vector(-27, 16, 0)),
    Part.LineSegment(Vector(-27, 16, 0), Vector(-2, 16, 0)),
    Part.LineSegment(Vector(-2, 16, 0), Vector(-2, 0, 0)),
], False)
sketch22.addConstraint([
    Sketcher.Constraint("Coincident", 0, 2, 1, 1),
    Sketcher.Constraint("Coincident", 1, 2, 2, 1),
    Sketcher.Constraint("Coincident", 2, 2, 3, 1),
    Sketcher.Constraint("Coincident", 3, 2, 0, 1),
    Sketcher.Constraint("Horizontal", 0),
    Sketcher.Constraint("Vertical", 1),
    Sketcher.Constraint("Horizontal", 2),
    Sketcher.Constraint("Vertical", 3),
    Sketcher.Constraint("PointOnObject", 0, 2, -1),
    Sketcher.Constraint("DistanceX", 0, 2, 0, 1, Q("1 in")),
    Sketcher.Constraint("DistanceY", 1, 1, 1, 2, Q("0.625 in")),
    Sketcher.Constraint("DistanceX", 0, 2, -1, 1, Q("1.0625 in")),
])
pad18 = doc.addObject("PartDesign::Pad", "Pad017")
body.addObject(pad18)
pad18.Profile = sketch22
pad18.Length = Q("0.25 in")
pad18.Reversed = True

# Sketch on YZ plane
sketch23 = doc.addObject("Sketcher::SketchObject", "Sketch022")
body.addObject(sketch23)
sketch23.AttachmentSupport = (doc.YZ_Plane, [""])
sketch23.MapMode = "FlatFace"
sketch23.AttachmentOffset = App.Placement(Vector(0, 0, -2.47 * 25.4), App.Rotation())
sketch23.addGeometry([
    Part.LineSegment(Vector(26, 16, 0), Vector(1, 16, 0)),
    Part.LineSegment(Vector(1, 16, 0), Vector(1, 0, 0)),
    Part.LineSegment(Vector(1, 0, 0), Vector(26, 0, 0)),
    Part.LineSegment(Vector(26, 0, 0), Vector(26, 16, 0)),
], False)
sketch23.addConstraint([
    Sketcher.Constraint("Coincident", 0, 2, 1, 1),
    Sketcher.Constraint("Coincident", 1, 2, 2, 1),
    Sketcher.Constraint("Coincident", 2, 2, 3, 1),
    Sketcher.Constraint("Coincident", 3, 2, 0, 1),
    Sketcher.Constraint("Horizontal", 0),
    Sketcher.Constraint("Vertical", 1),
    Sketcher.Constraint("Horizontal", 2),
    Sketcher.Constraint("Vertical", 3),
    Sketcher.Constraint("PointOnObject", 1, 2, -1),
    Sketcher.Constraint("DistanceX", 0, 2, 0, 1, Q("1 in")),
    Sketcher.Constraint("DistanceY", 1, 2, 1, 1, Q("0.625 in")),
    Sketcher.Constraint("DistanceX", -1, 1, 0, 2, Q("0.0375 in")),
])
pad19 = doc.addObject("PartDesign::Pad", "Pad018")
body.addObject(pad19)
pad19.Profile = sketch23
pad19.Length = Q("0.25 in")

# Sketch on XZ plane
sketch24 = doc.addObject("Sketcher::SketchObject", "Sketch023")
body.addObject(sketch24)
sketch24.AttachmentSupport = (doc.XZ_Plane, [""])
sketch24.MapMode = "FlatFace"
sketch24.AttachmentOffset = App.Placement(Vector(0, 0, -0.0375 * 25.4), App.Rotation())
sketch24.addGeometry([
    Part.LineSegment(Vector(-56.4, 0, 0), Vector(-56.4, 15.9, 0)),
    Part.LineSegment(Vector(-56.4, 15.9, 0), Vector(-53.2, 15.9, 0)),
    Part.LineSegment(Vector(-53.2, 15.9, 0), Vector(-53.2, 0, 0)),
    Part.LineSegment(Vector(-53.2, 0, 0), Vector(-56.4, 0, 0)),
], False)
sketch24.addConstraint([
    Sketcher.Constraint("Coincident", 0, 2, 1, 1),
    Sketcher.Constraint("Coincident", 1, 2, 2, 1),
    Sketcher.Constraint("Coincident", 2, 2, 3, 1),
    Sketcher.Constraint("Coincident", 3, 2, 0, 1),
    Sketcher.Constraint("Vertical", 0),
    Sketcher.Constraint("Horizontal", 1),
    Sketcher.Constraint("Vertical", 2),
    Sketcher.Constraint("Horizontal", 3),
    Sketcher.Constraint("PointOnObject", 2, 2, -1),
    Sketcher.Constraint("DistanceX", 1, 1, 1, 2, Q("0.125 in")),
    Sketcher.Constraint("DistanceY", 0, 1, 0, 2, Q("0.625 in")),
    Sketcher.Constraint("DistanceX", 0, 2, -1, 1, Q("2.22 in")),
])
pad20 = doc.addObject("PartDesign::Pad", "Pad019")
body.addObject(pad20)
pad20.Profile = sketch24
pad20.Length = Q("0.125 in")
pad20.Reversed = True

# Sketch on XZ plane
sketch25 = doc.addObject("Sketcher::SketchObject", "Sketch024")
body.addObject(sketch25)
sketch25.AttachmentSupport = (doc.XZ_Plane, [""])
sketch25.MapMode = "FlatFace"
sketch25.AttachmentOffset = App.Placement(Vector(0, 0, -1.0375 * 25.4), App.Rotation())
sketch25.addGeometry([
    Part.LineSegment(Vector(-56.4, 15.9, 0), Vector(-56.4, 0, 0)),
    Part.LineSegment(Vector(-56.4, 0, 0), Vector(-53.2, 0, 0)),
    Part.LineSegment(Vector(-53.2, 0, 0), Vector(-53.2, 15.9, 0)),
    Part.LineSegment(Vector(-53.2, 15.9, 0), Vector(-56.4, 15.9, 0)),
], False)
sketch25.addConstraint([
    Sketcher.Constraint("Coincident", 0, 2, 1, 1),
    Sketcher.Constraint("Coincident", 1, 2, 2, 1),
    Sketcher.Constraint("Coincident", 2, 2, 3, 1),
    Sketcher.Constraint("Coincident", 3, 2, 0, 1),
    Sketcher.Constraint("Vertical", 0),
    Sketcher.Constraint("Horizontal", 1),
    Sketcher.Constraint("Vertical", 2),
    Sketcher.Constraint("Horizontal", 3),
    Sketcher.Constraint("PointOnObject", 0, 2, -1),
    Sketcher.Constraint("DistanceX", 1, 1, 1, 2, Q("0.125 in")),
    Sketcher.Constraint("DistanceY", 0, 2, 0, 1, Q("0.625 in")),
    Sketcher.Constraint("DistanceX", 0, 2, -1, 1, Q("2.22 in")),
])
pad21 = doc.addObject("PartDesign::Pad", "Pad020")
body.addObject(pad21)
pad21.Profile = sketch25
pad21.Length = Q("0.125 in")

# Sketch on XZ plane
sketch26 = doc.addObject("Sketcher::SketchObject", "Sketch025")
body.addObject(sketch26)
sketch26.AttachmentSupport = (doc.XZ_Plane, [""])
sketch26.MapMode = "FlatFace"
sketch26.AttachmentOffset = App.Placement(Vector(0, 0, 0.0625 * 25.4), App.Rotation())
sketch26.addGeometry([
    Part.LineSegment(Vector(53.2, 15.9, 0), Vector(53.2, 0, 0)),
    Part.LineSegment(Vector(53.2, 0, 0), Vector(56.4, 0, 0)),
    Part.LineSegment(Vector(56.4, 0, 0), Vector(56.4, 15.9, 0)),
    Part.LineSegment(Vector(56.4, 15.9, 0), Vector(53.2, 15.9, 0)),
], False)
sketch26.addConstraint([
    Sketcher.Constraint("Coincident", 0, 2, 1, 1),
    Sketcher.Constraint("Coincident", 1, 2, 2, 1),
    Sketcher.Constraint("Coincident", 2, 2, 3, 1),
    Sketcher.Constraint("Coincident", 3, 2, 0, 1),
    Sketcher.Constraint("Vertical", 0),
    Sketcher.Constraint("Horizontal", 1),
    Sketcher.Constraint("Vertical", 2),
    Sketcher.Constraint("Horizontal", 3),
    Sketcher.Constraint("PointOnObject", 0, 2, -1),
    Sketcher.Constraint("DistanceX", 1, 1, 1, 2, Q("0.125 in")),
    Sketcher.Constraint("DistanceY", 0, 2, 0, 1, Q("0.625 in")),
    Sketcher.Constraint("DistanceX", -1, 1, 1, 2, Q("2.22 in")),
])
pad22 = doc.addObject("PartDesign::Pad", "Pad021")
body.addObject(pad22)
pad22.Profile = sketch26
pad22.Length = Q("0.125 in")

# Sketch on XZ plane
sketch27 = doc.addObject("Sketcher::SketchObject", "Sketch026")
body.addObject(sketch27)
sketch27.AttachmentSupport = (doc.XZ_Plane, [""])
sketch27.MapMode = "FlatFace"
sketch27.AttachmentOffset = App.Placement(Vector(0, 0, 1.0625 * 25.4), App.Rotation())
sketch27.addGeometry([
    Part.LineSegment(Vector(53.2, 0, 0), Vector(53.2, 15.9, 0)),
    Part.LineSegment(Vector(53.2, 15.9, 0), Vector(56.4, 15.9, 0)),
    Part.LineSegment(Vector(56.4, 15.9, 0), Vector(56.4, 0, 0)),
    Part.LineSegment(Vector(56.4, 0, 0), Vector(53.2, 0, 0)),
], False)
sketch27.addConstraint([
    Sketcher.Constraint("Coincident", 0, 2, 1, 1),
    Sketcher.Constraint("Coincident", 1, 2, 2, 1),
    Sketcher.Constraint("Coincident", 2, 2, 3, 1),
    Sketcher.Constraint("Coincident", 3, 2, 0, 1),
    Sketcher.Constraint("Vertical", 0),
    Sketcher.Constraint("Horizontal", 1),
    Sketcher.Constraint("Vertical", 2),
    Sketcher.Constraint("Horizontal", 3),
    Sketcher.Constraint("PointOnObject", 2, 2, -1),
    Sketcher.Constraint("DistanceX", 1, 1, 1, 2, Q("0.125 in")),
    Sketcher.Constraint("DistanceY", 0, 1, 0, 2, Q("0.625 in")),
    Sketcher.Constraint("DistanceX", -1, 1, 1, 2, Q("2.22 in")),
])
pad23 = doc.addObject("PartDesign::Pad", "Pad022")
body.addObject(pad23)
pad23.Profile = sketch27
pad23.Length = Q("0.125 in")
pad23.Reversed = True

doc.recompute()
